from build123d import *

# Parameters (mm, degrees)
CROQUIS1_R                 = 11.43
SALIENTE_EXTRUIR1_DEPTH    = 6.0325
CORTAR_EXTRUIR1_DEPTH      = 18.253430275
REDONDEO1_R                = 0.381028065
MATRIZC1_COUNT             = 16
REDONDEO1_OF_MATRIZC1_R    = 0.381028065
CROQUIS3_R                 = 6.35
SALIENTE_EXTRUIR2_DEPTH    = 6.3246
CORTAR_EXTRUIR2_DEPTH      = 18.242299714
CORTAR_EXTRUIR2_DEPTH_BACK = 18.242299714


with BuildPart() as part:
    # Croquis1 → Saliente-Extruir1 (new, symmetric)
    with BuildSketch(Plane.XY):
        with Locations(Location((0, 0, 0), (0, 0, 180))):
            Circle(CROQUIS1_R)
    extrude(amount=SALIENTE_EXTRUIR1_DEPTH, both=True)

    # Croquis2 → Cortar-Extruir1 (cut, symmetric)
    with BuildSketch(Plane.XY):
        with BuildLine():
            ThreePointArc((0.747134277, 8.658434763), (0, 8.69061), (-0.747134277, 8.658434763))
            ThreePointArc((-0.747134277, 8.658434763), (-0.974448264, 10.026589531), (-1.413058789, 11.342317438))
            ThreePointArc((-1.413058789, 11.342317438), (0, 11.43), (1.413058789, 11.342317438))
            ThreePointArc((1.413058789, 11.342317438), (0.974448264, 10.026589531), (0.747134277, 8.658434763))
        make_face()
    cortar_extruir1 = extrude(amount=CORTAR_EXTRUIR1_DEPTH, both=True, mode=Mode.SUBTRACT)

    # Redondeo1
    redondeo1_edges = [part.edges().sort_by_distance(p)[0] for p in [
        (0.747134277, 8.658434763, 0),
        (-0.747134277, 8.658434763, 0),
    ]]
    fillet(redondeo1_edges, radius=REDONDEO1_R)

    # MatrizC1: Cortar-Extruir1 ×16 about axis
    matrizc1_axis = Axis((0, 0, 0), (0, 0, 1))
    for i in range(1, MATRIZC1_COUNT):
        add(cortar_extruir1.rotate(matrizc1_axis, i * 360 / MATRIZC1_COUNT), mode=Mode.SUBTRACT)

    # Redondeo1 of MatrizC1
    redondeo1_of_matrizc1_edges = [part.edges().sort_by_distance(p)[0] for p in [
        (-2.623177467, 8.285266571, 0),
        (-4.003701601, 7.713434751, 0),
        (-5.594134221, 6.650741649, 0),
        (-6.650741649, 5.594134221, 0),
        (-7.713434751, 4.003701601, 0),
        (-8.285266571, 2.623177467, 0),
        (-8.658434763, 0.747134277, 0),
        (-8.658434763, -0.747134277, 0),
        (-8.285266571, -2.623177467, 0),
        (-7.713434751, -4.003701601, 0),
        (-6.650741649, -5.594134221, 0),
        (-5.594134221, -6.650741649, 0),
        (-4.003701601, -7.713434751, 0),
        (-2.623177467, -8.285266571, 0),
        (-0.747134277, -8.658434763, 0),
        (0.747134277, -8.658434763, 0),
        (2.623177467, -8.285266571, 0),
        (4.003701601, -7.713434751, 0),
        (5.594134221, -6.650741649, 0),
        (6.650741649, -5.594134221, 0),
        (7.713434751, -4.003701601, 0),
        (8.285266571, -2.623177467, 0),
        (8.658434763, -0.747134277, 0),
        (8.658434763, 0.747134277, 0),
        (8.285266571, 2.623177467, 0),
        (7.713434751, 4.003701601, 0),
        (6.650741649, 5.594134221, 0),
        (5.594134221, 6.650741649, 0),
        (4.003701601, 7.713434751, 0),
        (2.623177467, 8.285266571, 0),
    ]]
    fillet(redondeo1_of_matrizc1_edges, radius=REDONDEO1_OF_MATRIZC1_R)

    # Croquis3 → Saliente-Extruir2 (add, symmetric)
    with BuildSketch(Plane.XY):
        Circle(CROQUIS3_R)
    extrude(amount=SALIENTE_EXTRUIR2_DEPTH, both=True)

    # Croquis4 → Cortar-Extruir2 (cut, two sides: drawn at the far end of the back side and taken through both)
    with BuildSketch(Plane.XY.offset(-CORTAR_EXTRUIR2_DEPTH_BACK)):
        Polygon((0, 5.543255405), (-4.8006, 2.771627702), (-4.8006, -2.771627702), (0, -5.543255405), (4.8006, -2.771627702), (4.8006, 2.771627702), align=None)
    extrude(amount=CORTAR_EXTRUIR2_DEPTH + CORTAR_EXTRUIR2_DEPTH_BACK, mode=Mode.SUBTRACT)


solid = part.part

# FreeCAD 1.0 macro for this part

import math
import FreeCAD as App
import Part
import Sketcher
from FreeCAD import Vector
Q = App.Units.Quantity


def edges_at(feature, points):
    """Names of the edges that pass closest to the given points."""
    edges = feature.Shape.Edges
    near = lambda p: min(range(len(edges)), key=lambda i: edges[i].distToShape(Part.Vertex(*p))[0])
    return sorted({f"Edge{near(p) + 1}" for p in points})

doc = App.newDocument("Part")
params = doc.addObject("Spreadsheet::Sheet", "Params")
for row, (alias, value) in enumerate([
    ("sketch1_diameter", "0.9 in"),
    ("pad1_length", "0.475 in"),
    ("sketch2_radius", "0.45 in"),
    ("pocket1_length", "36.506861 mm"),
    ("fillet_radius", "0.381028 mm"),
    ("fillet2_radius", "0.381028 mm"),
    ("sketch3_diameter", "0.5 in"),
    ("pad2_length", "0.498 in"),
], start=1):
    params.set(f"A{row}", alias)
    params.set(f"B{row}", "=" + value)
    params.setAlias(f"B{row}", alias)

body = doc.addObject("PartDesign::Body", "Body")

# Sketch on XY plane
sketch1 = body.newObject("Sketcher::SketchObject", "Sketch")
sketch1.AttachmentSupport = (doc.getObject("XY_Plane"), [""])
sketch1.MapMode = "FlatFace"
sketch1.addGeometry(Part.Circle(Vector(0, 0, 0), Vector(0, 0, 1), 11.43), False)
sketch1.addConstraint([
    Sketcher.Constraint("Coincident", 0, 3, -1, 1),
    Sketcher.Constraint("Diameter", 0, Q("0.9 in")),
])
sketch1.setExpression("Constraints[1]", "Params.sketch1_diameter")
pad1 = body.newObject("PartDesign::Pad", "Pad")
pad1.Profile = sketch1
pad1.setExpression("Length", "Params.pad1_length")
pad1.Midplane = True

# Sketch on XY plane
sketch2 = body.newObject("Sketcher::SketchObject", "Sketch001")
sketch2.AttachmentSupport = (doc.getObject("XY_Plane"), [""])
sketch2.MapMode = "FlatFace"
sketch2.addGeometry([
    Part.ArcOfCircle(Part.Circle(Vector(0, 0, 0), Vector(0, 0, 1), 8.69061), math.radians(85.068177), math.radians(94.931823)),
    Part.ArcOfCircle(Part.Circle(Vector(9.549923, 7.898844, 0), Vector(0, 0, 1), 8.8355), math.radians(157.062203), math.radians(175.068177)),
    Part.ArcOfCircle(Part.Circle(Vector(0, 0, 0), Vector(0, 0, 1), 11.43), math.radians(82.898515), math.radians(97.101485)),
    Part.ArcOfCircle(Part.Circle(Vector(-9.549923, 7.898844, 0), Vector(0, 0, 1), 8.8355), math.radians(4.931823), math.radians(22.937797)),
], False)
sketch2.addConstraint([
    Sketcher.Constraint("Coincident", 0, 1, 1, 2),
    Sketcher.Constraint("Coincident", 1, 1, 2, 1),
    Sketcher.Constraint("Coincident", 2, 2, 3, 2),
    Sketcher.Constraint("Coincident", 3, 1, 0, 2),
    Sketcher.Constraint("Coincident", 0, 3, -1, 1),
    Sketcher.Constraint("Coincident", 2, 3, -1, 1),
    Sketcher.Constraint("Equal", 1, 3),
    Sketcher.Constraint("Symmetric", 1, 3, 3, 3, -2),
    Sketcher.Constraint("Radius", 2, Q("0.45 in")),
    Sketcher.Constraint("Radius", 1, Q("8.8355 mm")),
    Sketcher.Constraint("Radius", 0, Q("8.69061 mm")),
    Sketcher.Constraint("DistanceX", -1, 1, 1, 1, Q("1.413059 mm")),
    Sketcher.Constraint("DistanceX", 0, 1, 1, 3, Q("8.802789 mm")),
])
sketch2.setExpression("Constraints[8]", "Params.sketch2_radius")
pocket1 = body.newObject("PartDesign::Pocket", "Pocket")
pocket1.Profile = sketch2
pocket1.setExpression("Length", "Params.pocket1_length")
pocket1.Midplane = True
doc.recompute()

fillet = body.newObject("PartDesign::Fillet", "Fillet")
fillet.Base = (pocket1, edges_at(pocket1, [(0.747, 8.658, 0), (-0.747, 8.658, 0)]))
fillet.setExpression("Radius", "Params.fillet_radius")
doc.recompute()

polarpattern = body.newObject("PartDesign::PolarPattern", "PolarPattern")
polarpattern.Originals = [pocket1]
polarpattern.Axis = (doc.getObject("Z_Axis"), [""])
polarpattern.Angle = 360
polarpattern.Occurrences = 16
body.Tip = polarpattern
doc.recompute()

fillet2 = body.newObject("PartDesign::Fillet", "Fillet001")
fillet2.Base = (polarpattern, edges_at(polarpattern, [
    (-2.623, 8.285, 0),
    (-4.004, 7.713, 0),
    (-5.594, 6.651, 0),
    (-6.651, 5.594, 0),
    (-7.713, 4.004, 0),
    (-8.285, 2.623, 0),
    (-8.658, 0.747, 0),
    (-8.658, -0.747, 0),
    (-8.285, -2.623, 0),
    (-7.713, -4.004, 0),
    (-6.651, -5.594, 0),
    (-5.594, -6.651, 0),
    (-4.004, -7.713, 0),
    (-2.623, -8.285, 0),
    (-0.747, -8.658, 0),
    (0.747, -8.658, 0),
    (2.623, -8.285, 0),
    (4.004, -7.713, 0),
    (5.594, -6.651, 0),
    (6.651, -5.594, 0),
    (7.713, -4.004, 0),
    (8.285, -2.623, 0),
    (8.658, -0.747, 0),
    (8.658, 0.747, 0),
    (8.285, 2.623, 0),
    (7.713, 4.004, 0),
    (6.651, 5.594, 0),
    (5.594, 6.651, 0),
    (4.004, 7.713, 0),
    (2.623, 8.285, 0),
]))
fillet2.setExpression("Radius", "Params.fillet2_radius")

# Sketch on XY plane
sketch3 = body.newObject("Sketcher::SketchObject", "Sketch002")
sketch3.AttachmentSupport = (doc.getObject("XY_Plane"), [""])
sketch3.MapMode = "FlatFace"
sketch3.addGeometry(Part.Circle(Vector(0, 0, 0), Vector(0, 0, 1), 6.35), False)
sketch3.addConstraint([
    Sketcher.Constraint("Coincident", 0, 3, -1, 1),
    Sketcher.Constraint("Diameter", 0, Q("0.5 in")),
])
sketch3.setExpression("Constraints[1]", "Params.sketch3_diameter")
pad2 = body.newObject("PartDesign::Pad", "Pad001")
pad2.Profile = sketch3
pad2.setExpression("Length", "Params.pad2_length")
pad2.Midplane = True

# Sketch on XY plane
sketch4 = body.newObject("Sketcher::SketchObject", "Sketch003")
sketch4.AttachmentSupport = (doc.getObject("XY_Plane"), [""])
sketch4.MapMode = "FlatFace"
sketch4.addGeometry([
    Part.LineSegment(Vector(0, 5.543255, 0), Vector(-4.8006, 2.771628, 0)),  # 0
    Part.LineSegment(Vector(-4.8006, 2.771628, 0), Vector(-4.8006, -2.771628, 0)),  # 1
    Part.LineSegment(Vector(-4.8006, -2.771628, 0), Vector(0, -5.543255, 0)),  # 2
    Part.LineSegment(Vector(0, -5.543255, 0), Vector(4.8006, -2.771628, 0)),  # 3
    Part.LineSegment(Vector(4.8006, -2.771628, 0), Vector(4.8006, 2.771628, 0)),  # 4
    Part.LineSegment(Vector(4.8006, 2.771628, 0), Vector(0, 5.543255, 0)),  # 5
], False)
sketch4.addConstraint([
    Sketcher.Constraint("Coincident", 0, 2, 1, 1),
    Sketcher.Constraint("Coincident", 1, 2, 2, 1),
    Sketcher.Constraint("Coincident", 2, 2, 3, 1),
    Sketcher.Constraint("Coincident", 3, 2, 4, 1),
    Sketcher.Constraint("Coincident", 4, 2, 5, 1),
    Sketcher.Constraint("Coincident", 5, 2, 0, 1),
    Sketcher.Constraint("Vertical", 1),
    Sketcher.Constraint("Vertical", 4),
    Sketcher.Constraint("Symmetric", 0, 2, 3, 2, -1, 1),
    Sketcher.Constraint("Symmetric", 2, 2, 5, 2, -1, 1),
    Sketcher.Constraint("PointOnObject", 2, 2, -2),
    Sketcher.Constraint("Parallel", 2, 5),
    Sketcher.Constraint("Horizontal", 1, 2, 3, 2),
    Sketcher.Constraint("Angle", 0, Q("-150 deg")),
    Sketcher.Constraint("DistanceX", 0, 2, -1, 1, Q("0.189 in")),
    Sketcher.Constraint("DistanceY", 1, 2, 1, 1, Q("5.543255 mm")),
])
pocket2 = body.newObject("PartDesign::Pocket", "Pocket001")
pocket2.Profile = sketch4
pocket2.Type = "ThroughAll"
pocket2.Midplane = True

doc.recompute()
